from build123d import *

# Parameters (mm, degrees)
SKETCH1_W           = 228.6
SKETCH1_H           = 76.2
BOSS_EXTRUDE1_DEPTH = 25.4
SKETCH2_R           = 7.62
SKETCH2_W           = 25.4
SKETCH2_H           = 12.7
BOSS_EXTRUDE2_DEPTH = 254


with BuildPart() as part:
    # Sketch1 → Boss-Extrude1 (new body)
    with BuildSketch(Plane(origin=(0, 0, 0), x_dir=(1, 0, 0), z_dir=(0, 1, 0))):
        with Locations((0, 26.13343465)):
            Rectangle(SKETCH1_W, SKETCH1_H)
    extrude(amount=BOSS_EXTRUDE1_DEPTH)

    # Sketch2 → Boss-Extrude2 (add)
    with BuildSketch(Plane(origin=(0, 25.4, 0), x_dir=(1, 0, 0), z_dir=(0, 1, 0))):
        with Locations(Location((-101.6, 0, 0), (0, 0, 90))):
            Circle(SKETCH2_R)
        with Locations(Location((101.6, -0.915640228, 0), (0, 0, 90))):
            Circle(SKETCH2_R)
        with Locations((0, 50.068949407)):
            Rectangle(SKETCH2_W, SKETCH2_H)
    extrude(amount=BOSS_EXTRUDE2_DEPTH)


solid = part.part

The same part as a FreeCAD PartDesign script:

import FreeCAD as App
import Part
import Sketcher

V = App.Vector
Q = App.Units.Quantity

doc = App.newDocument("Part")
params = doc.addObject("Spreadsheet::Sheet", "Params")
for row, (alias, value) in enumerate([
    ("sketch1_width", "9 in"),
    ("sketch1_height", "3 in"),
    ("pad1_length", "1 in"),
    ("sketch2_diameter", "0.6 in"),
    ("sketch2_width", "1 in"),
    ("sketch2_height", "0.5 in"),
    ("pad2_length", "10 in"),
], start=1):
    params.set(f"A{row}", alias)
    params.set(f"B{row}", "=" + value)
    params.setAlias(f"B{row}", alias)

body = doc.addObject("PartDesign::Body", "Body")

sketch1 = doc.addObject("Sketcher::SketchObject", "Sketch")
body.addObject(sketch1)
sketch1.AttachmentSupport = (doc.XZ_Plane, [""])
sketch1.MapMode = "FlatFace"
sketch1.addGeometry([
    Part.LineSegment(V(-114, -64, 0), V(-114, 12, 0)),
    Part.LineSegment(V(-114, 12, 0), V(114, 12, 0)),
    Part.LineSegment(V(114, 12, 0), V(114, -64, 0)),
    Part.LineSegment(V(114, -64, 0), V(-114, -64, 0)),
], False)
sketch1.addConstraint([
    Sketcher.Constraint("Coincident", 0, 2, 1, 1),
    Sketcher.Constraint("Coincident", 1, 2, 2, 1),
    Sketcher.Constraint("Coincident", 2, 2, 3, 1),
    Sketcher.Constraint("Coincident", 3, 2, 0, 1),
    Sketcher.Constraint("Vertical", 0),
    Sketcher.Constraint("Horizontal", 1),
    Sketcher.Constraint("Vertical", 2),
    Sketcher.Constraint("Horizontal", 3),
    Sketcher.Constraint("DistanceX", 1, 1, 1, 2, Q("9 in")),
    Sketcher.Constraint("DistanceY", 0, 1, 0, 2, Q("3 in")),
    Sketcher.Constraint("DistanceX", 0, 2, -1, 1, Q("4.5 in")),
    Sketcher.Constraint("DistanceY", -1, 1, 0, 2, Q("11.966565 mm")),
])
sketch1.setExpression("Constraints[8]", "Params.sketch1_width")
sketch1.setExpression("Constraints[9]", "Params.sketch1_height")
pad1 = doc.addObject("PartDesign::Pad", "Pad")
body.addObject(pad1)
pad1.Profile = sketch1
pad1.setExpression("Length", "Params.pad1_length")
pad1.Reversed = True

sketch2 = doc.addObject("Sketcher::SketchObject", "Sketch001")
body.addObject(sketch2)
sketch2.AttachmentSupport = (doc.XZ_Plane, [""])
sketch2.MapMode = "FlatFace"
sketch2.AttachmentOffset = App.Placement(V(0, 0, -1 * 25.4), App.Rotation())
sketch2.addGeometry([
    Part.Circle(V(-102, 0, 0), V(0, 0, 1), 8),
    Part.Circle(V(102, 1, 0), V(0, 0, 1), 8),
    Part.LineSegment(V(-13, -56, 0), V(-13, -44, 0)),
    Part.LineSegment(V(-13, -44, 0), V(13, -44, 0)),
    Part.LineSegment(V(13, -44, 0), V(13, -56, 0)),
    Part.LineSegment(V(13, -56, 0), V(-13, -56, 0)),
], False)
sketch2.addConstraint([
    Sketcher.Constraint("Coincident", 2, 2, 3, 1),
    Sketcher.Constraint("Coincident", 3, 2, 4, 1),
    Sketcher.Constraint("Coincident", 4, 2, 5, 1),
    Sketcher.Constraint("Coincident", 5, 2, 2, 1),
    Sketcher.Constraint("Vertical", 2),
    Sketcher.Constraint("Horizontal", 3),
    Sketcher.Constraint("Vertical", 4),
    Sketcher.Constraint("Horizontal", 5),
    Sketcher.Constraint("Equal", 0, 1),
    Sketcher.Constraint("PointOnObject", 0, 3, -1),
    Sketcher.Constraint("Diameter", 0, Q("0.6 in")),
    Sketcher.Constraint("DistanceX", 3, 1, 3, 2, Q("1 in")),
    Sketcher.Constraint("DistanceY", 2, 1, 2, 2, Q("0.5 in")),
    Sketcher.Constraint("DistanceX", 0, 3, -1, 1, Q("4 in")),
    Sketcher.Constraint("DistanceX", -1, 1, 1, 3, Q("4 in")),
    Sketcher.Constraint("DistanceX", 2, 2, -1, 1, Q("0.5 in")),
    Sketcher.Constraint("DistanceY", -1, 1, 1, 3, Q("0.91564 mm")),
    Sketcher.Constraint("DistanceY", 2, 2, -1, 1, Q("43.718949 mm")),
])
sketch2.setExpression("Constraints[10]", "Params.sketch2_diameter")
sketch2.setExpression("Constraints[11]", "Params.sketch2_width")
sketch2.setExpression("Constraints[12]", "Params.sketch2_height")
pad2 = doc.addObject("PartDesign::Pad", "Pad001")
body.addObject(pad2)
pad2.Profile = sketch2
pad2.setExpression("Length", "Params.pad2_length")
pad2.Reversed = True

doc.recompute()
